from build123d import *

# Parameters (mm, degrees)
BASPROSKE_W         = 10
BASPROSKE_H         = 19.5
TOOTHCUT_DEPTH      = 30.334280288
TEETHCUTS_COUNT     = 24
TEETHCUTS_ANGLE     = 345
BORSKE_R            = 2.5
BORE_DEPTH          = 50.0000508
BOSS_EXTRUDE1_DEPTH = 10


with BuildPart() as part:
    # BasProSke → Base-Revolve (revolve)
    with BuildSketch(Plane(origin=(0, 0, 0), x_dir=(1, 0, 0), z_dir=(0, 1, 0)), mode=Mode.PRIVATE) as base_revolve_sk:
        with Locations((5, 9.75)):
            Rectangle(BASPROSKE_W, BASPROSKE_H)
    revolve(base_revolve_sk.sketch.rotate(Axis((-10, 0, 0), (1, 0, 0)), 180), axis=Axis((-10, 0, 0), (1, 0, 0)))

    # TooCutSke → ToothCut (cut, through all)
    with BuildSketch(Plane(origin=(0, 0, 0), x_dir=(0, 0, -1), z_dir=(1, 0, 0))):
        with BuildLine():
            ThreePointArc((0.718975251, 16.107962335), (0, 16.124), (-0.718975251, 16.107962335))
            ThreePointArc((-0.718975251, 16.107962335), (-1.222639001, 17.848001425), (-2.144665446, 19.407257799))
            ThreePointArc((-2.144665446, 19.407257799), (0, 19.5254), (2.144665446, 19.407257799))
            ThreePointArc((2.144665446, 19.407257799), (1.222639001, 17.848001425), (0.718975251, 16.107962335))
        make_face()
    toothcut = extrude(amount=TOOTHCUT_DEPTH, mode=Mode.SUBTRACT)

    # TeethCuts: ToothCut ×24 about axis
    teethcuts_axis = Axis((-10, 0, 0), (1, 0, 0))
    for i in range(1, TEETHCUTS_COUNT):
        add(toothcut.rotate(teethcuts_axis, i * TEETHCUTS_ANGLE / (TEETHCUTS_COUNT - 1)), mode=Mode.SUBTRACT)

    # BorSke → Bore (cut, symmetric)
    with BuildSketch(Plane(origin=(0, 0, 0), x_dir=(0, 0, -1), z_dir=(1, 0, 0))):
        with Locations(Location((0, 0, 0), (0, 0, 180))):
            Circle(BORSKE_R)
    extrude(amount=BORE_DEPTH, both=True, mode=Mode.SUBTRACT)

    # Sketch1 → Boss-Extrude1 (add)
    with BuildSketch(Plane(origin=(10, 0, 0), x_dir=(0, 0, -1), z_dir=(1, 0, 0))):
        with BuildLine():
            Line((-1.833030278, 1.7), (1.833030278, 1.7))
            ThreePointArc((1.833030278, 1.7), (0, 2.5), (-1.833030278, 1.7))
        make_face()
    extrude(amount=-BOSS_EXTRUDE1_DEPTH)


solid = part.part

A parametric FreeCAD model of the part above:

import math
import FreeCAD as App
import Part
import Sketcher
Q = App.Units.Quantity

doc = App.newDocument("Part")
body = doc.addObject("PartDesign::Body", "Body")

# Sketch on XZ plane
sketch1 = doc.addObject("Sketcher::SketchObject", "Sketch")
body.addObject(sketch1)
sketch1.AttachmentSupport = (doc.XZ_Plane, [""])
sketch1.MapMode = "FlatFace"
sketch1.addGeometry([
    Part.LineSegment(App.Vector(0, -19.5, 0), App.Vector(0, 0, 0)),
    Part.LineSegment(App.Vector(0, 0, 0), App.Vector(10, 0, 0)),
    Part.LineSegment(App.Vector(10, 0, 0), App.Vector(10, -19.5, 0)),
    Part.LineSegment(App.Vector(10, -19.5, 0), App.Vector(0, -19.5, 0)),
], False)
sketch1.addConstraint([
    Sketcher.Constraint("Coincident", 0, 2, 1, 1),
    Sketcher.Constraint("Coincident", 1, 2, 2, 1),
    Sketcher.Constraint("Coincident", 2, 2, 3, 1),
    Sketcher.Constraint("Coincident", 3, 2, 0, 1),
    Sketcher.Constraint("Vertical", 0),
    Sketcher.Constraint("Horizontal", 1),
    Sketcher.Constraint("Vertical", 2),
    Sketcher.Constraint("Horizontal", 3),
    Sketcher.Constraint("Coincident", 0, 2, -1, 1),
    Sketcher.Constraint("DistanceX", 1, 1, 1, 2, Q("10 mm")),
    Sketcher.Constraint("DistanceY", 0, 1, 0, 2, Q("19.5 mm")),
])
revolution = doc.addObject("PartDesign::Revolution", "Revolution")
body.addObject(revolution)
revolution.Profile = sketch1
revolution.ReferenceAxis = (sketch1, ["H_Axis"])
revolution.Angle = 360

# Sketch on YZ plane
sketch2 = doc.addObject("Sketcher::SketchObject", "Sketch001")
body.addObject(sketch2)
sketch2.AttachmentSupport = (doc.YZ_Plane, [""])
sketch2.MapMode = "FlatFace"
sketch2.addGeometry([
    Part.ArcOfCircle(Part.Circle(App.Vector(0, 0, 0), App.Vector(0, 0, 1), 16.124), math.radians(-2.555688), math.radians(2.555688)),
    Part.ArcOfCircle(Part.Circle(App.Vector(14.991983, -7.831963, 0), App.Vector(0, 0, 1), 7.2), math.radians(52.176391), math.radians(81.083372)),
    Part.ArcOfCircle(Part.Circle(App.Vector(0, 0, 0), App.Vector(0, 0, 1), 19.5254), math.radians(-6.306079), math.radians(6.306079)),
    Part.ArcOfCircle(Part.Circle(App.Vector(14.991983, 7.831963, 0), App.Vector(0, 0, 1), 7.2), math.radians(-81.083372), math.radians(-52.176391)),
], False)
sketch2.addConstraint([
    Sketcher.Constraint("Coincident", 0, 1, 1, 2),
    Sketcher.Constraint("Coincident", 1, 1, 2, 1),
    Sketcher.Constraint("Coincident", 2, 2, 3, 2),
    Sketcher.Constraint("Coincident", 3, 1, 0, 2),
    Sketcher.Constraint("Coincident", 0, 3, -1, 1),
    Sketcher.Constraint("Coincident", 2, 3, -1, 1),
    Sketcher.Constraint("Equal", 1, 3),
    Sketcher.Constraint("Symmetric", 1, 3, 3, 3, -1),
    Sketcher.Constraint("Radius", 1, Q("7.2 mm")),
    Sketcher.Constraint("Radius", 0, Q("16.124 mm")),
    Sketcher.Constraint("Radius", 2, Q("19.5254 mm")),
    Sketcher.Constraint("DistanceX", 1, 3, 0, 1, Q("1.115979 mm")),
    Sketcher.Constraint("DistanceY", 1, 1, 3, 3, Q("9.976628 mm")),
])
pocket1 = doc.addObject("PartDesign::Pocket", "Pocket")
body.addObject(pocket1)
pocket1.Profile = sketch2
pocket1.Type = "ThroughAll"
pocket1.Reversed = True
doc.recompute()

polarpattern = doc.addObject("PartDesign::PolarPattern", "PolarPattern")
body.addObject(polarpattern)
polarpattern.Originals = [pocket1]
polarpattern.Axis = (doc.X_Axis, [""])
polarpattern.Angle = 360
polarpattern.Occurrences = 24
body.Tip = polarpattern

# Sketch on YZ plane
sketch3 = doc.addObject("Sketcher::SketchObject", "Sketch002")
body.addObject(sketch3)
sketch3.AttachmentSupport = (doc.YZ_Plane, [""])
sketch3.MapMode = "FlatFace"
sketch3.addGeometry(Part.Circle(App.Vector(0, 0, 0), App.Vector(0, 0, 1), 2.5), False)
sketch3.addConstraint([
    Sketcher.Constraint("Coincident", 0, 3, -1, 1),
    Sketcher.Constraint("Diameter", 0, Q("5 mm")),
])
pocket2 = doc.addObject("PartDesign::Pocket", "Pocket001")
body.addObject(pocket2)
pocket2.Profile = sketch3
pocket2.Length = 100.000102
pocket2.Midplane = True

# Sketch on YZ plane
sketch4 = doc.addObject("Sketcher::SketchObject", "Sketch003")
body.addObject(sketch4)
sketch4.AttachmentSupport = (doc.YZ_Plane, [""])
sketch4.MapMode = "FlatFace"
sketch4.AttachmentOffset = App.Placement(App.Vector(0, 0, 10), App.Rotation())
sketch4.addGeometry([
    Part.LineSegment(App.Vector(1.7, 1.83303, 0), App.Vector(1.7, -1.83303, 0)),
    Part.ArcOfCircle(Part.Circle(App.Vector(0, 0, 0), App.Vector(0, 0, 1), 2.5), math.radians(-47.156357), math.radians(47.156357)),
], False)
sketch4.addConstraint([
    Sketcher.Constraint("Coincident", 0, 1, 1, 2),
    Sketcher.Constraint("Coincident", 1, 1, 0, 2),
    Sketcher.Constraint("Vertical", 0),
    Sketcher.Constraint("Coincident", 1, 3, -1, 1),
    Sketcher.Constraint("Radius", 1, Q("2.5 mm")),
    Sketcher.Constraint("DistanceX", -1, 1, 0, 1, Q("1.7 mm")),
])
pad1 = doc.addObject("PartDesign::Pad", "Pad")
body.addObject(pad1)
pad1.Profile = sketch4
pad1.Length = 10
pad1.Reversed = True

doc.recompute()
